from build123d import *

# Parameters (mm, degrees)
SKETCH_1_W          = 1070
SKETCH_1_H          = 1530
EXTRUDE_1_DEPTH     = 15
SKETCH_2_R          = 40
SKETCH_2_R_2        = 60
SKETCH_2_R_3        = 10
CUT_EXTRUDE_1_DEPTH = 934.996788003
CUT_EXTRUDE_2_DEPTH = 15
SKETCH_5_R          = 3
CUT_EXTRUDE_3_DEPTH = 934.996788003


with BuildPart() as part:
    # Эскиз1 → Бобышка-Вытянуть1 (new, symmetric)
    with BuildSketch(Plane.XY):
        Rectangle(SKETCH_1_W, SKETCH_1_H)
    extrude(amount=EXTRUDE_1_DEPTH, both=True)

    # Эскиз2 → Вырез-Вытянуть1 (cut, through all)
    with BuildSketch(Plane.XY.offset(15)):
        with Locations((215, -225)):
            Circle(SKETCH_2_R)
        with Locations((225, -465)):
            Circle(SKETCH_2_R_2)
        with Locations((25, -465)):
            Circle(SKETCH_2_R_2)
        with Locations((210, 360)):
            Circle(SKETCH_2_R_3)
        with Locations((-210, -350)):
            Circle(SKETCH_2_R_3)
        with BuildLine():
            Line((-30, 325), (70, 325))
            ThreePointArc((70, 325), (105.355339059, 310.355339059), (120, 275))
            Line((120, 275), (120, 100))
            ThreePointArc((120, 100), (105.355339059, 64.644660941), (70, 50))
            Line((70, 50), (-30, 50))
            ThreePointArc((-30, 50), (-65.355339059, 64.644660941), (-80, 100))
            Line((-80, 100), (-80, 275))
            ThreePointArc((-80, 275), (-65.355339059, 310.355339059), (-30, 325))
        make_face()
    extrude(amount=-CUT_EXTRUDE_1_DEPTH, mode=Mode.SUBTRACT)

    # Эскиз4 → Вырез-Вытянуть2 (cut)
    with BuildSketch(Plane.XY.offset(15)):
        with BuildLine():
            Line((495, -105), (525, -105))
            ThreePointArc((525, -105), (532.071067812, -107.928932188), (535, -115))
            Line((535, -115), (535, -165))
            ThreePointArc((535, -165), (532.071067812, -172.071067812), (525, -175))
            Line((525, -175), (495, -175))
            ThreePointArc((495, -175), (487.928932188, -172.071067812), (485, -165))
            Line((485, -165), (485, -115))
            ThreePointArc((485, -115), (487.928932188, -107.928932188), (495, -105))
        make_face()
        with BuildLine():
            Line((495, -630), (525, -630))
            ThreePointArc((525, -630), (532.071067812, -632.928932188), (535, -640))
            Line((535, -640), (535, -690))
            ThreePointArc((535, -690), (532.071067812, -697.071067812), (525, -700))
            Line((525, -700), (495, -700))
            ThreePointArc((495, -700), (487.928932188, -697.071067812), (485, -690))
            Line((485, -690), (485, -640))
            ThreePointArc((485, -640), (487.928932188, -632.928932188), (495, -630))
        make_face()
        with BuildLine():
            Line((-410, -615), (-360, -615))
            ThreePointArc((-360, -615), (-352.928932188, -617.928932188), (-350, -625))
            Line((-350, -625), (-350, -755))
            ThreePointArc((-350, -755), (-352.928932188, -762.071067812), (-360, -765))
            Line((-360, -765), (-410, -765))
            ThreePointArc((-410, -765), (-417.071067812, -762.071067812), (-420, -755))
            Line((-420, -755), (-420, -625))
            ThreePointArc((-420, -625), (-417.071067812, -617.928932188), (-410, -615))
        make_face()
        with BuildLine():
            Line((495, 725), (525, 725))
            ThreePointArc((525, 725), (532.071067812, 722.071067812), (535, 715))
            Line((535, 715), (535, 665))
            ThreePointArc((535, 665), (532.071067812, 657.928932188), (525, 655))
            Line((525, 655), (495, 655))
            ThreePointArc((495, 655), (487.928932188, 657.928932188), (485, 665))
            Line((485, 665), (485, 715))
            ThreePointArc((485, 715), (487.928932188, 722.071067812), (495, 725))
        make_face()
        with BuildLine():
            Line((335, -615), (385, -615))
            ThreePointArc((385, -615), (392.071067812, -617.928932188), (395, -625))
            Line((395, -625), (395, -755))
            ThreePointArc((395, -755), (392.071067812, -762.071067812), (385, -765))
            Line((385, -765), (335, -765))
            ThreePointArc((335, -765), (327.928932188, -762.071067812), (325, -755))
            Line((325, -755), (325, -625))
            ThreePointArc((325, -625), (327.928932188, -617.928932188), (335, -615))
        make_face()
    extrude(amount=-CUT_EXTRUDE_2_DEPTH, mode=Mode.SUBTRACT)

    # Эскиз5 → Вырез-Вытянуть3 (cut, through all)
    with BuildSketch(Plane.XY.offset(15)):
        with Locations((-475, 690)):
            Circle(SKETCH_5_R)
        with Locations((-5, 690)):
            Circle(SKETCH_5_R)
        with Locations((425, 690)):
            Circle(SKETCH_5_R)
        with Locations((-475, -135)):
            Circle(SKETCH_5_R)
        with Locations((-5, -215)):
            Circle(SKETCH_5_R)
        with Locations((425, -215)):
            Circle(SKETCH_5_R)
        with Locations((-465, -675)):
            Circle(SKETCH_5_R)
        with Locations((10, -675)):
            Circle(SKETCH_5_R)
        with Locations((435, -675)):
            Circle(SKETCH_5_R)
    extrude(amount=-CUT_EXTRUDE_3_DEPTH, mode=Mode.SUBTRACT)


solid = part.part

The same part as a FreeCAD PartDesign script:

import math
import FreeCAD as App
import Part
import Sketcher


def add_polygon(sketch, points):
    """Adds a closed chain of lines whose ends are joined by coincident constraints."""
    first, n = sketch.GeometryCount, len(points)
    for a, b in zip(points, points[1:] + points[:1]):
        sketch.addGeometry(Part.LineSegment(App.Vector(*a, 0), App.Vector(*b, 0)), False)
    for i in range(n):
        sketch.addConstraint(Sketcher.Constraint("Coincident", first + i, 2, first + (i + 1) % n, 1))

doc = App.newDocument("Part")
body = doc.addObject("PartDesign::Body", "Body")

# Sketch on XY plane
sketch1 = body.newObject("Sketcher::SketchObject", "Sketch")
sketch1.AttachmentSupport = (doc.getObject("XY_Plane"), [""])
sketch1.MapMode = "FlatFace"
add_polygon(sketch1, [(-535, 765), (-535, -765), (535, -765), (535, 765)])  # lines 0-3
sketch1.addConstraint([
    Sketcher.Constraint("Vertical", 0),
    Sketcher.Constraint("Horizontal", 1),
    Sketcher.Constraint("Vertical", 2),
    Sketcher.Constraint("Horizontal", 3),
    Sketcher.Constraint("Symmetric", 0, 2, 2, 2, -1, 1),
    Sketcher.Constraint("DistanceX", 1, 1, 1, 2, 1070.0),
    Sketcher.Constraint("DistanceY", 0, 2, 0, 1, 1530.0),
])
pad1 = body.newObject("PartDesign::Pad", "Pad")
pad1.Profile = sketch1
pad1.Length = 30
pad1.Midplane = True

# Sketch on XY plane
sketch2 = body.newObject("Sketcher::SketchObject", "Sketch001")
sketch2.AttachmentSupport = (doc.getObject("XY_Plane"), [""])
sketch2.MapMode = "FlatFace"
sketch2.AttachmentOffset = App.Placement(App.Vector(0, 0, 15), App.Rotation())
sketch2.addGeometry([
    Part.Circle(App.Vector(215, -225, 0), App.Vector(0, 0, 1), 40),  # 0
    Part.Circle(App.Vector(225, -465, 0), App.Vector(0, 0, 1), 60),  # 1
    Part.Circle(App.Vector(25, -465, 0), App.Vector(0, 0, 1), 60),  # 2
    Part.Circle(App.Vector(210, 360, 0), App.Vector(0, 0, 1), 10),  # 3
    Part.Circle(App.Vector(-210, -350, 0), App.Vector(0, 0, 1), 10),  # 4
    Part.LineSegment(App.Vector(70, 325, 0), App.Vector(-30, 325, 0)),  # 5
    Part.ArcOfCircle(Part.Circle(App.Vector(-30, 275, 0), App.Vector(0, 0, 1), 50), math.radians(90), math.radians(180)),  # 6
    Part.LineSegment(App.Vector(-80, 275, 0), App.Vector(-80, 100, 0)),  # 7
    Part.ArcOfCircle(Part.Circle(App.Vector(-30, 100, 0), App.Vector(0, 0, 1), 50), math.radians(-180), math.radians(-90)),  # 8
    Part.LineSegment(App.Vector(-30, 50, 0), App.Vector(70, 50, 0)),  # 9
    Part.ArcOfCircle(Part.Circle(App.Vector(70, 100, 0), App.Vector(0, 0, 1), 50), math.radians(-90), math.radians(0)),  # 10
    Part.LineSegment(App.Vector(120, 100, 0), App.Vector(120, 275, 0)),  # 11
    Part.ArcOfCircle(Part.Circle(App.Vector(70, 275, 0), App.Vector(0, 0, 1), 50), math.radians(0), math.radians(90)),  # 12
], False)
sketch2.addConstraint([
    Sketcher.Constraint("Tangent", 5, 2, 6, 1),
    Sketcher.Constraint("Tangent", 6, 2, 7, 1),
    Sketcher.Constraint("Tangent", 7, 2, 8, 1),
    Sketcher.Constraint("Tangent", 8, 2, 9, 1),
    Sketcher.Constraint("Tangent", 9, 2, 10, 1),
    Sketcher.Constraint("Tangent", 10, 2, 11, 1),
    Sketcher.Constraint("Tangent", 11, 2, 12, 1),
    Sketcher.Constraint("Tangent", 12, 2, 5, 1),
    Sketcher.Constraint("Horizontal", 5),
    Sketcher.Constraint("Vertical", 7),
    Sketcher.Constraint("Horizontal", 9),
    Sketcher.Constraint("Vertical", 11),
    Sketcher.Constraint("Equal", 1, 2),
    Sketcher.Constraint("Equal", 3, 4),
    Sketcher.Constraint("Equal", 6, 8),
    Sketcher.Constraint("Equal", 8, 10),
    Sketcher.Constraint("Equal", 10, 12),
    Sketcher.Constraint("Horizontal", 1, 3, 2, 3),
    Sketcher.Constraint("Diameter", 0, 80.0),
    Sketcher.Constraint("Diameter", 1, 120.0),
    Sketcher.Constraint("Diameter", 3, 20.0),
    Sketcher.Constraint("Radius", 6, 50.0),
    Sketcher.Constraint("DistanceX", 5, 2, 5, 1, 100.0),
    Sketcher.Constraint("DistanceY", 7, 2, 7, 1, 175.0),
    Sketcher.Constraint("DistanceX", -1, 1, 0, 3, 215.0),
    Sketcher.Constraint("DistanceY", 0, 3, -1, 1, 225.0),
    Sketcher.Constraint("DistanceX", -1, 1, 1, 3, 225.0),
    Sketcher.Constraint("DistanceY", 1, 3, -1, 1, 465.0),
    Sketcher.Constraint("DistanceX", -1, 1, 2, 3, 25.0),
    Sketcher.Constraint("DistanceX", -1, 1, 3, 3, 210.0),
    Sketcher.Constraint("DistanceY", -1, 1, 3, 3, 360.0),
    Sketcher.Constraint("DistanceX", 4, 3, -1, 1, 210.0),
    Sketcher.Constraint("DistanceY", 4, 3, -1, 1, 350.0),
    Sketcher.Constraint("DistanceX", 6, 3, -1, 1, 30.0),
    Sketcher.Constraint("DistanceY", -1, 1, 6, 3, 275.0),
])
pocket1 = body.newObject("PartDesign::Pocket", "Pocket")
pocket1.Profile = sketch2
pocket1.Type = "ThroughAll"

# Sketch on XY plane
sketch3 = body.newObject("Sketcher::SketchObject", "Sketch002")
sketch3.AttachmentSupport = (doc.getObject("XY_Plane"), [""])
sketch3.MapMode = "FlatFace"
sketch3.AttachmentOffset = App.Placement(App.Vector(0, 0, 15), App.Rotation())
sketch3.addGeometry([
    Part.LineSegment(App.Vector(525, -105, 0), App.Vector(495, -105, 0)),  # 0
    Part.ArcOfCircle(Part.Circle(App.Vector(495, -115, 0), App.Vector(0, 0, 1), 10), math.radians(90), math.radians(180)),  # 1
    Part.LineSegment(App.Vector(485, -115, 0), App.Vector(485, -165, 0)),  # 2
    Part.ArcOfCircle(Part.Circle(App.Vector(495, -165, 0), App.Vector(0, 0, 1), 10), math.radians(180), math.radians(270)),  # 3
    Part.LineSegment(App.Vector(495, -175, 0), App.Vector(525, -175, 0)),  # 4
    Part.ArcOfCircle(Part.Circle(App.Vector(525, -165, 0), App.Vector(0, 0, 1), 10), math.radians(-90), math.radians(0)),  # 5
    Part.LineSegment(App.Vector(535, -165, 0), App.Vector(535, -115, 0)),  # 6
    Part.ArcOfCircle(Part.Circle(App.Vector(525, -115, 0), App.Vector(0, 0, 1), 10), math.radians(0), math.radians(90)),  # 7
    Part.LineSegment(App.Vector(525, -630, 0), App.Vector(495, -630, 0)),  # 8
    Part.ArcOfCircle(Part.Circle(App.Vector(495, -640, 0), App.Vector(0, 0, 1), 10), math.radians(90), math.radians(180)),  # 9
    Part.LineSegment(App.Vector(485, -640, 0), App.Vector(485, -690, 0)),  # 10
    Part.ArcOfCircle(Part.Circle(App.Vector(495, -690, 0), App.Vector(0, 0, 1), 10), math.radians(180), math.radians(270)),  # 11
    Part.LineSegment(App.Vector(495, -700, 0), App.Vector(525, -700, 0)),  # 12
    Part.ArcOfCircle(Part.Circle(App.Vector(525, -690, 0), App.Vector(0, 0, 1), 10), math.radians(-90), math.radians(0)),  # 13
    Part.LineSegment(App.Vector(535, -690, 0), App.Vector(535, -640, 0)),  # 14
    Part.ArcOfCircle(Part.Circle(App.Vector(525, -640, 0), App.Vector(0, 0, 1), 10), math.radians(0), math.radians(90)),  # 15
    Part.LineSegment(App.Vector(-360, -615, 0), App.Vector(-410, -615, 0)),  # 16
    Part.ArcOfCircle(Part.Circle(App.Vector(-410, -625, 0), App.Vector(0, 0, 1), 10), math.radians(90), math.radians(180)),  # 17
    Part.LineSegment(App.Vector(-420, -625, 0), App.Vector(-420, -755, 0)),  # 18
    Part.ArcOfCircle(Part.Circle(App.Vector(-410, -755, 0), App.Vector(0, 0, 1), 10), math.radians(180), math.radians(270)),  # 19
    Part.LineSegment(App.Vector(-410, -765, 0), App.Vector(-360, -765, 0)),  # 20
    Part.ArcOfCircle(Part.Circle(App.Vector(-360, -755, 0), App.Vector(0, 0, 1), 10), math.radians(-90), math.radians(0)),  # 21
    Part.LineSegment(App.Vector(-350, -755, 0), App.Vector(-350, -625, 0)),  # 22
    Part.ArcOfCircle(Part.Circle(App.Vector(-360, -625, 0), App.Vector(0, 0, 1), 10), math.radians(0), math.radians(90)),  # 23
    Part.LineSegment(App.Vector(525, 725, 0), App.Vector(495, 725, 0)),  # 24
    Part.ArcOfCircle(Part.Circle(App.Vector(495, 715, 0), App.Vector(0, 0, 1), 10), math.radians(90), math.radians(180)),  # 25
    Part.LineSegment(App.Vector(485, 715, 0), App.Vector(485, 665, 0)),  # 26
    Part.ArcOfCircle(Part.Circle(App.Vector(495, 665, 0), App.Vector(0, 0, 1), 10), math.radians(180), math.radians(270)),  # 27
    Part.LineSegment(App.Vector(495, 655, 0), App.Vector(525, 655, 0)),  # 28
    Part.ArcOfCircle(Part.Circle(App.Vector(525, 665, 0), App.Vector(0, 0, 1), 10), math.radians(-90), math.radians(0)),  # 29
    Part.LineSegment(App.Vector(535, 665, 0), App.Vector(535, 715, 0)),  # 30
    Part.ArcOfCircle(Part.Circle(App.Vector(525, 715, 0), App.Vector(0, 0, 1), 10), math.radians(0), math.radians(90)),  # 31
    Part.LineSegment(App.Vector(385, -615, 0), App.Vector(335, -615, 0)),  # 32
    Part.ArcOfCircle(Part.Circle(App.Vector(335, -625, 0), App.Vector(0, 0, 1), 10), math.radians(90), math.radians(180)),  # 33
    Part.LineSegment(App.Vector(325, -625, 0), App.Vector(325, -755, 0)),  # 34
    Part.ArcOfCircle(Part.Circle(App.Vector(335, -755, 0), App.Vector(0, 0, 1), 10), math.radians(180), math.radians(270)),  # 35
    Part.LineSegment(App.Vector(335, -765, 0), App.Vector(385, -765, 0)),  # 36
    Part.ArcOfCircle(Part.Circle(App.Vector(385, -755, 0), App.Vector(0, 0, 1), 10), math.radians(-90), math.radians(0)),  # 37
    Part.LineSegment(App.Vector(395, -755, 0), App.Vector(395, -625, 0)),  # 38
    Part.ArcOfCircle(Part.Circle(App.Vector(385, -625, 0), App.Vector(0, 0, 1), 10), math.radians(0), math.radians(90)),  # 39
], False)
sketch3.addConstraint([
    Sketcher.Constraint("Tangent", 0, 2, 1, 1),
    Sketcher.Constraint("Tangent", 1, 2, 2, 1),
    Sketcher.Constraint("Tangent", 2, 2, 3, 1),
    Sketcher.Constraint("Tangent", 3, 2, 4, 1),
    Sketcher.Constraint("Tangent", 4, 2, 5, 1),
    Sketcher.Constraint("Tangent", 5, 2, 6, 1),
    Sketcher.Constraint("Tangent", 6, 2, 7, 1),
    Sketcher.Constraint("Tangent", 7, 2, 0, 1),
    Sketcher.Constraint("Tangent", 8, 2, 9, 1),
    Sketcher.Constraint("Tangent", 9, 2, 10, 1),
    Sketcher.Constraint("Tangent", 10, 2, 11, 1),
    Sketcher.Constraint("Tangent", 11, 2, 12, 1),
    Sketcher.Constraint("Tangent", 12, 2, 13, 1),
    Sketcher.Constraint("Tangent", 13, 2, 14, 1),
    Sketcher.Constraint("Tangent", 14, 2, 15, 1),
    Sketcher.Constraint("Tangent", 15, 2, 8, 1),
    Sketcher.Constraint("Tangent", 16, 2, 17, 1),
    Sketcher.Constraint("Tangent", 17, 2, 18, 1),
    Sketcher.Constraint("Tangent", 18, 2, 19, 1),
    Sketcher.Constraint("Tangent", 19, 2, 20, 1),
    Sketcher.Constraint("Tangent", 20, 2, 21, 1),
    Sketcher.Constraint("Tangent", 21, 2, 22, 1),
    Sketcher.Constraint("Tangent", 22, 2, 23, 1),
    Sketcher.Constraint("Tangent", 23, 2, 16, 1),
    Sketcher.Constraint("Tangent", 24, 2, 25, 1),
    Sketcher.Constraint("Tangent", 25, 2, 26, 1),
    Sketcher.Constraint("Tangent", 26, 2, 27, 1),
    Sketcher.Constraint("Tangent", 27, 2, 28, 1),
    Sketcher.Constraint("Tangent", 28, 2, 29, 1),
    Sketcher.Constraint("Tangent", 29, 2, 30, 1),
    Sketcher.Constraint("Tangent", 30, 2, 31, 1),
    Sketcher.Constraint("Tangent", 31, 2, 24, 1),
    Sketcher.Constraint("Tangent", 32, 2, 33, 1),
    Sketcher.Constraint("Tangent", 33, 2, 34, 1),
    Sketcher.Constraint("Tangent", 34, 2, 35, 1),
    Sketcher.Constraint("Tangent", 35, 2, 36, 1),
    Sketcher.Constraint("Tangent", 36, 2, 37, 1),
    Sketcher.Constraint("Tangent", 37, 2, 38, 1),
    Sketcher.Constraint("Tangent", 38, 2, 39, 1),
    Sketcher.Constraint("Tangent", 39, 2, 32, 1),
    Sketcher.Constraint("Horizontal", 0),
    Sketcher.Constraint("Vertical", 2),
    Sketcher.Constraint("Horizontal", 4),
    Sketcher.Constraint("Vertical", 6),
    Sketcher.Constraint("Horizontal", 8),
    Sketcher.Constraint("Vertical", 10),
    Sketcher.Constraint("Horizontal", 12),
    Sketcher.Constraint("Vertical", 14),
    Sketcher.Constraint("Horizontal", 16),
    Sketcher.Constraint("Vertical", 18),
    Sketcher.Constraint("Horizontal", 20),
    Sketcher.Constraint("Vertical", 22),
    Sketcher.Constraint("Horizontal", 24),
    Sketcher.Constraint("Vertical", 26),
    Sketcher.Constraint("Horizontal", 28),
    Sketcher.Constraint("Vertical", 30),
    Sketcher.Constraint("Horizontal", 32),
    Sketcher.Constraint("Vertical", 34),
    Sketcher.Constraint("Horizontal", 36),
    Sketcher.Constraint("Vertical", 38),
    Sketcher.Constraint("Equal", 1, 3),
    Sketcher.Constraint("Equal", 3, 5),
    Sketcher.Constraint("Equal", 5, 7),
    Sketcher.Constraint("Equal", 7, 9),
    Sketcher.Constraint("Equal", 9, 11),
    Sketcher.Constraint("Equal", 11, 13),
    Sketcher.Constraint("Equal", 13, 15),
    Sketcher.Constraint("Equal", 15, 17),
    Sketcher.Constraint("Equal", 17, 19),
    Sketcher.Constraint("Equal", 19, 21),
    Sketcher.Constraint("Equal", 21, 23),
    Sketcher.Constraint("Equal", 23, 25),
    Sketcher.Constraint("Equal", 25, 27),
    Sketcher.Constraint("Equal", 27, 29),
    Sketcher.Constraint("Equal", 29, 31),
    Sketcher.Constraint("Equal", 31, 33),
    Sketcher.Constraint("Equal", 33, 35),
    Sketcher.Constraint("Equal", 35, 37),
    Sketcher.Constraint("Equal", 37, 39),
    Sketcher.Constraint("Horizontal", 23, 3, 33, 3),
    Sketcher.Constraint("Horizontal", 21, 3, 35, 3),
    Sketcher.Constraint("Vertical", 3, 3, 9, 3),
    Sketcher.Constraint("Vertical", 7, 3, 13, 3),
    Sketcher.Constraint("Vertical", 11, 3, 25, 3),
    Sketcher.Constraint("Vertical", 15, 3, 29, 3),
    Sketcher.Constraint("Equal", 20, 32),
    Sketcher.Constraint("Equal", 36, 2),
    Sketcher.Constraint("Equal", 6, 10),
    Sketcher.Constraint("Equal", 14, 26),
    Sketcher.Constraint("Radius", 1, 10.0),
    Sketcher.Constraint("DistanceX", 0, 2, 0, 1, 30.0),
    Sketcher.Constraint("DistanceX", 16, 2, 16, 1, 50.0),
    Sketcher.Constraint("DistanceY", 18, 2, 18, 1, 130.0),
    Sketcher.Constraint("DistanceX", -1, 1, 1, 3, 495.0),
    Sketcher.Constraint("DistanceY", 1, 3, -1, 1, 115.0),
    Sketcher.Constraint("DistanceY", 9, 3, -1, 1, 640.0),
    Sketcher.Constraint("DistanceX", 17, 3, -1, 1, 410.0),
    Sketcher.Constraint("DistanceY", 17, 3, -1, 1, 625.0),
    Sketcher.Constraint("DistanceY", -1, 1, 25, 3, 715.0),
    Sketcher.Constraint("DistanceX", -1, 1, 33, 3, 335.0),
])
pocket2 = body.newObject("PartDesign::Pocket", "Pocket001")
pocket2.Profile = sketch3
pocket2.Length = 15

# Sketch on XY plane
sketch4 = body.newObject("Sketcher::SketchObject", "Sketch003")
sketch4.AttachmentSupport = (doc.getObject("XY_Plane"), [""])
sketch4.MapMode = "FlatFace"
sketch4.AttachmentOffset = App.Placement(App.Vector(0, 0, 15), App.Rotation())
sketch4.addGeometry([
    Part.Circle(App.Vector(-475, 690, 0), App.Vector(0, 0, 1), 3),  # 0
    Part.Circle(App.Vector(-5, 690, 0), App.Vector(0, 0, 1), 3),  # 1
    Part.Circle(App.Vector(425, 690, 0), App.Vector(0, 0, 1), 3),  # 2
    Part.Circle(App.Vector(-475, -135, 0), App.Vector(0, 0, 1), 3),  # 3
    Part.Circle(App.Vector(-5, -215, 0), App.Vector(0, 0, 1), 3),  # 4
    Part.Circle(App.Vector(425, -215, 0), App.Vector(0, 0, 1), 3),  # 5
    Part.Circle(App.Vector(-465, -675, 0), App.Vector(0, 0, 1), 3),  # 6
    Part.Circle(App.Vector(10, -675, 0), App.Vector(0, 0, 1), 3),  # 7
    Part.Circle(App.Vector(435, -675, 0), App.Vector(0, 0, 1), 3),  # 8
], False)
sketch4.addConstraint([
    Sketcher.Constraint("Equal", 0, 1),
    Sketcher.Constraint("Equal", 1, 2),
    Sketcher.Constraint("Equal", 2, 3),
    Sketcher.Constraint("Equal", 3, 4),
    Sketcher.Constraint("Equal", 4, 5),
    Sketcher.Constraint("Equal", 5, 6),
    Sketcher.Constraint("Equal", 6, 7),
    Sketcher.Constraint("Equal", 7, 8),
    Sketcher.Constraint("Horizontal", 0, 3, 1, 3),
    Sketcher.Constraint("Horizontal", 1, 3, 2, 3),
    Sketcher.Constraint("Horizontal", 4, 3, 5, 3),
    Sketcher.Constraint("Horizontal", 6, 3, 7, 3),
    Sketcher.Constraint("Horizontal", 7, 3, 8, 3),
    Sketcher.Constraint("Vertical", 0, 3, 3, 3),
    Sketcher.Constraint("Vertical", 1, 3, 4, 3),
    Sketcher.Constraint("Vertical", 2, 3, 5, 3),
    Sketcher.Constraint("Diameter", 0, 6.0),
    Sketcher.Constraint("DistanceX", 0, 3, -1, 1, 475.0),
    Sketcher.Constraint("DistanceY", -1, 1, 0, 3, 690.0),
    Sketcher.Constraint("DistanceX", 1, 3, -1, 1, 5.0),
    Sketcher.Constraint("DistanceX", -1, 1, 2, 3, 425.0),
    Sketcher.Constraint("DistanceY", 3, 3, -1, 1, 135.0),
    Sketcher.Constraint("DistanceY", 4, 3, -1, 1, 215.0),
    Sketcher.Constraint("DistanceX", 6, 3, -1, 1, 465.0),
    Sketcher.Constraint("DistanceY", 6, 3, -1, 1, 675.0),
    Sketcher.Constraint("DistanceX", -1, 1, 7, 3, 10.0),
    Sketcher.Constraint("DistanceX", -1, 1, 8, 3, 435.0),
])
pocket3 = body.newObject("PartDesign::Pocket", "Pocket002")
pocket3.Profile = sketch4
pocket3.Type = "ThroughAll"

doc.recompute()
